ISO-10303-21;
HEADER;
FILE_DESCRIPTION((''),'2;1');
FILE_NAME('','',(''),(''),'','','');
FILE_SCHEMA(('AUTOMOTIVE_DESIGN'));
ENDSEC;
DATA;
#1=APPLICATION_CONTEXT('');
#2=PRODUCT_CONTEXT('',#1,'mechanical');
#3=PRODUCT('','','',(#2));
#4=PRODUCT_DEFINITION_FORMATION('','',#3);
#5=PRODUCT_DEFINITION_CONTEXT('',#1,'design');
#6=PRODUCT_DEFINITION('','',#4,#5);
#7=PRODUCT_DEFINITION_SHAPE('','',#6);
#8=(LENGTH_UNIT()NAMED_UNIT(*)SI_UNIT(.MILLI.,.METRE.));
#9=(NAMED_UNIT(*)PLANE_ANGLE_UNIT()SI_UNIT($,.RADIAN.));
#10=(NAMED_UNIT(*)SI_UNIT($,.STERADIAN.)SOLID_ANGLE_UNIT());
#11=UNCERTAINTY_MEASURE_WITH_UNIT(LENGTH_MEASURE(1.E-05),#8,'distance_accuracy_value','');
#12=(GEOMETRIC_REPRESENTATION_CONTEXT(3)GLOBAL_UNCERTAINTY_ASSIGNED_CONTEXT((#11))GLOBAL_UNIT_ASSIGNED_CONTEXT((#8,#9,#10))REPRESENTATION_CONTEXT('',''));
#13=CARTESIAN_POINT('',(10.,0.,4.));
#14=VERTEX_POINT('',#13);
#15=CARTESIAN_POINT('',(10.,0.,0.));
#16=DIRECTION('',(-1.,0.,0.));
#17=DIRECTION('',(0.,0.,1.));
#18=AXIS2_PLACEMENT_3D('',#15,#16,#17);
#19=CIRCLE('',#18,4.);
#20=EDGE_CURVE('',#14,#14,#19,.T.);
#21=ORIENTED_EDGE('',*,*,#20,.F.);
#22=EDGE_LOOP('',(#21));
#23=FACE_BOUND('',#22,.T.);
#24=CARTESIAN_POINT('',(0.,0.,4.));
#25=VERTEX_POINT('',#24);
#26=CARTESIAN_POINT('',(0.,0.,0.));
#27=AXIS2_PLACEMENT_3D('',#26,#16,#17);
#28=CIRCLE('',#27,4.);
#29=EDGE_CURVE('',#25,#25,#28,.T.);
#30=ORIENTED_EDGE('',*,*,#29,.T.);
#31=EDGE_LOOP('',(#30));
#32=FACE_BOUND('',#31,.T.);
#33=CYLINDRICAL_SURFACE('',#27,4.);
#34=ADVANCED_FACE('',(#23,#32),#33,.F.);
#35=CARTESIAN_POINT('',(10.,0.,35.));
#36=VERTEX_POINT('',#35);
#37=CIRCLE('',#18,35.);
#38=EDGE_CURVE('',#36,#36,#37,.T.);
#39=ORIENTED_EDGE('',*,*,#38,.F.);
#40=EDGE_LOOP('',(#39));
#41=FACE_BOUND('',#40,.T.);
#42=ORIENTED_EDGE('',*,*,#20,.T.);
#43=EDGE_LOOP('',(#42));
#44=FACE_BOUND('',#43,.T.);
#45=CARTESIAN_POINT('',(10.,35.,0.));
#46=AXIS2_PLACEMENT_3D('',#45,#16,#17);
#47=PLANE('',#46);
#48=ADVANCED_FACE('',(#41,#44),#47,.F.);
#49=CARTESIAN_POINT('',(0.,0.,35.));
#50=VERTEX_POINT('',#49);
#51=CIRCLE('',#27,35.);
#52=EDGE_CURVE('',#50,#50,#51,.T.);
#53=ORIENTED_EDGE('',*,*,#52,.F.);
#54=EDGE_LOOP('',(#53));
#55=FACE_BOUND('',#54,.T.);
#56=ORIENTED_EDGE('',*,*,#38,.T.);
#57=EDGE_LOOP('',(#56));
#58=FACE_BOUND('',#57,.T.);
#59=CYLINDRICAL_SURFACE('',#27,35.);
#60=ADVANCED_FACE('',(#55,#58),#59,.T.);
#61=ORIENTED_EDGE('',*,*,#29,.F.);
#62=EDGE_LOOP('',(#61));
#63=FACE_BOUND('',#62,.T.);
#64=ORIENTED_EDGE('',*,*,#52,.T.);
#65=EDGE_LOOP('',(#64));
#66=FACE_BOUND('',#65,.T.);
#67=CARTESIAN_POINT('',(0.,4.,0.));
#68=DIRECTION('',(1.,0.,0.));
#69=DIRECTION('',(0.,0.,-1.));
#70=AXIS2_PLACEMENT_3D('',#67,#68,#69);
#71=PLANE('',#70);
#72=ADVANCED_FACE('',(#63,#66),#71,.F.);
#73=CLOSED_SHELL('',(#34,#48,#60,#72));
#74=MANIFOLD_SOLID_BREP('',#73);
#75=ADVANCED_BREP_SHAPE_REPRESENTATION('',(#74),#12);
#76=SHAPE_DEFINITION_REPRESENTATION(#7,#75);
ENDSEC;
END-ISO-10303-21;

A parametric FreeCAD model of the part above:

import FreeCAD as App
import Part
import Sketcher

V = App.Vector


def add_polygon(sketch, points):
    """Adds a closed chain of lines whose ends are joined by coincident constraints."""
    first, n = sketch.GeometryCount, len(points)
    for a, b in zip(points, points[1:] + points[:1]):
        sketch.addGeometry(Part.LineSegment(App.Vector(*a, 0), App.Vector(*b, 0)), False)
    for i in range(n):
        sketch.addConstraint(Sketcher.Constraint("Coincident", first + i, 2, first + (i + 1) % n, 1))

doc = App.newDocument("Part")
params = doc.addObject("Spreadsheet::Sheet", "Params")
for row, (alias, value) in enumerate([
    ("sketch1_width", "10 mm"),
    ("sketch1_height", "31 mm"),
    ("revolution_angle", "360 deg"),
], start=1):
    params.set(f"A{row}", alias)
    params.set(f"B{row}", "=" + value)
    params.setAlias(f"B{row}", alias)

body = doc.addObject("PartDesign::Body", "Body")

# Sketch on XY plane
sketch1 = body.newObject("Sketcher::SketchObject", "Sketch")
sketch1.AttachmentSupport = (doc.getObject("XY_Plane"), [""])
sketch1.MapMode = "FlatFace"
add_polygon(sketch1, [(0, 35), (0, 4), (10, 4), (10, 35)])  # lines 0-3
sketch1.addConstraint(Sketcher.Constraint("Vertical", 0))
sketch1.addConstraint(Sketcher.Constraint("Horizontal", 1))
sketch1.addConstraint(Sketcher.Constraint("Vertical", 2))
sketch1.addConstraint(Sketcher.Constraint("Horizontal", 3))
sketch1.addConstraint(Sketcher.Constraint("PointOnObject", 0, 2, -2))
sketch1.addConstraint(Sketcher.Constraint("DistanceX", 1, 1, 1, 2, 10.0))
sketch1.addConstraint(Sketcher.Constraint("DistanceY", 0, 2, 0, 1, 31.0))
sketch1.addConstraint(Sketcher.Constraint("DistanceY", -1, 1, 0, 2, 4.0))
sketch1.setExpression("Constraints[9]", "Params.sketch1_width")
sketch1.setExpression("Constraints[10]", "Params.sketch1_height")
revolution = body.newObject("PartDesign::Revolution", "Revolution")
revolution.Profile = sketch1
revolution.ReferenceAxis = (sketch1, ["H_Axis"])
revolution.setExpression("Angle", "Params.revolution_angle")

doc.recompute()
